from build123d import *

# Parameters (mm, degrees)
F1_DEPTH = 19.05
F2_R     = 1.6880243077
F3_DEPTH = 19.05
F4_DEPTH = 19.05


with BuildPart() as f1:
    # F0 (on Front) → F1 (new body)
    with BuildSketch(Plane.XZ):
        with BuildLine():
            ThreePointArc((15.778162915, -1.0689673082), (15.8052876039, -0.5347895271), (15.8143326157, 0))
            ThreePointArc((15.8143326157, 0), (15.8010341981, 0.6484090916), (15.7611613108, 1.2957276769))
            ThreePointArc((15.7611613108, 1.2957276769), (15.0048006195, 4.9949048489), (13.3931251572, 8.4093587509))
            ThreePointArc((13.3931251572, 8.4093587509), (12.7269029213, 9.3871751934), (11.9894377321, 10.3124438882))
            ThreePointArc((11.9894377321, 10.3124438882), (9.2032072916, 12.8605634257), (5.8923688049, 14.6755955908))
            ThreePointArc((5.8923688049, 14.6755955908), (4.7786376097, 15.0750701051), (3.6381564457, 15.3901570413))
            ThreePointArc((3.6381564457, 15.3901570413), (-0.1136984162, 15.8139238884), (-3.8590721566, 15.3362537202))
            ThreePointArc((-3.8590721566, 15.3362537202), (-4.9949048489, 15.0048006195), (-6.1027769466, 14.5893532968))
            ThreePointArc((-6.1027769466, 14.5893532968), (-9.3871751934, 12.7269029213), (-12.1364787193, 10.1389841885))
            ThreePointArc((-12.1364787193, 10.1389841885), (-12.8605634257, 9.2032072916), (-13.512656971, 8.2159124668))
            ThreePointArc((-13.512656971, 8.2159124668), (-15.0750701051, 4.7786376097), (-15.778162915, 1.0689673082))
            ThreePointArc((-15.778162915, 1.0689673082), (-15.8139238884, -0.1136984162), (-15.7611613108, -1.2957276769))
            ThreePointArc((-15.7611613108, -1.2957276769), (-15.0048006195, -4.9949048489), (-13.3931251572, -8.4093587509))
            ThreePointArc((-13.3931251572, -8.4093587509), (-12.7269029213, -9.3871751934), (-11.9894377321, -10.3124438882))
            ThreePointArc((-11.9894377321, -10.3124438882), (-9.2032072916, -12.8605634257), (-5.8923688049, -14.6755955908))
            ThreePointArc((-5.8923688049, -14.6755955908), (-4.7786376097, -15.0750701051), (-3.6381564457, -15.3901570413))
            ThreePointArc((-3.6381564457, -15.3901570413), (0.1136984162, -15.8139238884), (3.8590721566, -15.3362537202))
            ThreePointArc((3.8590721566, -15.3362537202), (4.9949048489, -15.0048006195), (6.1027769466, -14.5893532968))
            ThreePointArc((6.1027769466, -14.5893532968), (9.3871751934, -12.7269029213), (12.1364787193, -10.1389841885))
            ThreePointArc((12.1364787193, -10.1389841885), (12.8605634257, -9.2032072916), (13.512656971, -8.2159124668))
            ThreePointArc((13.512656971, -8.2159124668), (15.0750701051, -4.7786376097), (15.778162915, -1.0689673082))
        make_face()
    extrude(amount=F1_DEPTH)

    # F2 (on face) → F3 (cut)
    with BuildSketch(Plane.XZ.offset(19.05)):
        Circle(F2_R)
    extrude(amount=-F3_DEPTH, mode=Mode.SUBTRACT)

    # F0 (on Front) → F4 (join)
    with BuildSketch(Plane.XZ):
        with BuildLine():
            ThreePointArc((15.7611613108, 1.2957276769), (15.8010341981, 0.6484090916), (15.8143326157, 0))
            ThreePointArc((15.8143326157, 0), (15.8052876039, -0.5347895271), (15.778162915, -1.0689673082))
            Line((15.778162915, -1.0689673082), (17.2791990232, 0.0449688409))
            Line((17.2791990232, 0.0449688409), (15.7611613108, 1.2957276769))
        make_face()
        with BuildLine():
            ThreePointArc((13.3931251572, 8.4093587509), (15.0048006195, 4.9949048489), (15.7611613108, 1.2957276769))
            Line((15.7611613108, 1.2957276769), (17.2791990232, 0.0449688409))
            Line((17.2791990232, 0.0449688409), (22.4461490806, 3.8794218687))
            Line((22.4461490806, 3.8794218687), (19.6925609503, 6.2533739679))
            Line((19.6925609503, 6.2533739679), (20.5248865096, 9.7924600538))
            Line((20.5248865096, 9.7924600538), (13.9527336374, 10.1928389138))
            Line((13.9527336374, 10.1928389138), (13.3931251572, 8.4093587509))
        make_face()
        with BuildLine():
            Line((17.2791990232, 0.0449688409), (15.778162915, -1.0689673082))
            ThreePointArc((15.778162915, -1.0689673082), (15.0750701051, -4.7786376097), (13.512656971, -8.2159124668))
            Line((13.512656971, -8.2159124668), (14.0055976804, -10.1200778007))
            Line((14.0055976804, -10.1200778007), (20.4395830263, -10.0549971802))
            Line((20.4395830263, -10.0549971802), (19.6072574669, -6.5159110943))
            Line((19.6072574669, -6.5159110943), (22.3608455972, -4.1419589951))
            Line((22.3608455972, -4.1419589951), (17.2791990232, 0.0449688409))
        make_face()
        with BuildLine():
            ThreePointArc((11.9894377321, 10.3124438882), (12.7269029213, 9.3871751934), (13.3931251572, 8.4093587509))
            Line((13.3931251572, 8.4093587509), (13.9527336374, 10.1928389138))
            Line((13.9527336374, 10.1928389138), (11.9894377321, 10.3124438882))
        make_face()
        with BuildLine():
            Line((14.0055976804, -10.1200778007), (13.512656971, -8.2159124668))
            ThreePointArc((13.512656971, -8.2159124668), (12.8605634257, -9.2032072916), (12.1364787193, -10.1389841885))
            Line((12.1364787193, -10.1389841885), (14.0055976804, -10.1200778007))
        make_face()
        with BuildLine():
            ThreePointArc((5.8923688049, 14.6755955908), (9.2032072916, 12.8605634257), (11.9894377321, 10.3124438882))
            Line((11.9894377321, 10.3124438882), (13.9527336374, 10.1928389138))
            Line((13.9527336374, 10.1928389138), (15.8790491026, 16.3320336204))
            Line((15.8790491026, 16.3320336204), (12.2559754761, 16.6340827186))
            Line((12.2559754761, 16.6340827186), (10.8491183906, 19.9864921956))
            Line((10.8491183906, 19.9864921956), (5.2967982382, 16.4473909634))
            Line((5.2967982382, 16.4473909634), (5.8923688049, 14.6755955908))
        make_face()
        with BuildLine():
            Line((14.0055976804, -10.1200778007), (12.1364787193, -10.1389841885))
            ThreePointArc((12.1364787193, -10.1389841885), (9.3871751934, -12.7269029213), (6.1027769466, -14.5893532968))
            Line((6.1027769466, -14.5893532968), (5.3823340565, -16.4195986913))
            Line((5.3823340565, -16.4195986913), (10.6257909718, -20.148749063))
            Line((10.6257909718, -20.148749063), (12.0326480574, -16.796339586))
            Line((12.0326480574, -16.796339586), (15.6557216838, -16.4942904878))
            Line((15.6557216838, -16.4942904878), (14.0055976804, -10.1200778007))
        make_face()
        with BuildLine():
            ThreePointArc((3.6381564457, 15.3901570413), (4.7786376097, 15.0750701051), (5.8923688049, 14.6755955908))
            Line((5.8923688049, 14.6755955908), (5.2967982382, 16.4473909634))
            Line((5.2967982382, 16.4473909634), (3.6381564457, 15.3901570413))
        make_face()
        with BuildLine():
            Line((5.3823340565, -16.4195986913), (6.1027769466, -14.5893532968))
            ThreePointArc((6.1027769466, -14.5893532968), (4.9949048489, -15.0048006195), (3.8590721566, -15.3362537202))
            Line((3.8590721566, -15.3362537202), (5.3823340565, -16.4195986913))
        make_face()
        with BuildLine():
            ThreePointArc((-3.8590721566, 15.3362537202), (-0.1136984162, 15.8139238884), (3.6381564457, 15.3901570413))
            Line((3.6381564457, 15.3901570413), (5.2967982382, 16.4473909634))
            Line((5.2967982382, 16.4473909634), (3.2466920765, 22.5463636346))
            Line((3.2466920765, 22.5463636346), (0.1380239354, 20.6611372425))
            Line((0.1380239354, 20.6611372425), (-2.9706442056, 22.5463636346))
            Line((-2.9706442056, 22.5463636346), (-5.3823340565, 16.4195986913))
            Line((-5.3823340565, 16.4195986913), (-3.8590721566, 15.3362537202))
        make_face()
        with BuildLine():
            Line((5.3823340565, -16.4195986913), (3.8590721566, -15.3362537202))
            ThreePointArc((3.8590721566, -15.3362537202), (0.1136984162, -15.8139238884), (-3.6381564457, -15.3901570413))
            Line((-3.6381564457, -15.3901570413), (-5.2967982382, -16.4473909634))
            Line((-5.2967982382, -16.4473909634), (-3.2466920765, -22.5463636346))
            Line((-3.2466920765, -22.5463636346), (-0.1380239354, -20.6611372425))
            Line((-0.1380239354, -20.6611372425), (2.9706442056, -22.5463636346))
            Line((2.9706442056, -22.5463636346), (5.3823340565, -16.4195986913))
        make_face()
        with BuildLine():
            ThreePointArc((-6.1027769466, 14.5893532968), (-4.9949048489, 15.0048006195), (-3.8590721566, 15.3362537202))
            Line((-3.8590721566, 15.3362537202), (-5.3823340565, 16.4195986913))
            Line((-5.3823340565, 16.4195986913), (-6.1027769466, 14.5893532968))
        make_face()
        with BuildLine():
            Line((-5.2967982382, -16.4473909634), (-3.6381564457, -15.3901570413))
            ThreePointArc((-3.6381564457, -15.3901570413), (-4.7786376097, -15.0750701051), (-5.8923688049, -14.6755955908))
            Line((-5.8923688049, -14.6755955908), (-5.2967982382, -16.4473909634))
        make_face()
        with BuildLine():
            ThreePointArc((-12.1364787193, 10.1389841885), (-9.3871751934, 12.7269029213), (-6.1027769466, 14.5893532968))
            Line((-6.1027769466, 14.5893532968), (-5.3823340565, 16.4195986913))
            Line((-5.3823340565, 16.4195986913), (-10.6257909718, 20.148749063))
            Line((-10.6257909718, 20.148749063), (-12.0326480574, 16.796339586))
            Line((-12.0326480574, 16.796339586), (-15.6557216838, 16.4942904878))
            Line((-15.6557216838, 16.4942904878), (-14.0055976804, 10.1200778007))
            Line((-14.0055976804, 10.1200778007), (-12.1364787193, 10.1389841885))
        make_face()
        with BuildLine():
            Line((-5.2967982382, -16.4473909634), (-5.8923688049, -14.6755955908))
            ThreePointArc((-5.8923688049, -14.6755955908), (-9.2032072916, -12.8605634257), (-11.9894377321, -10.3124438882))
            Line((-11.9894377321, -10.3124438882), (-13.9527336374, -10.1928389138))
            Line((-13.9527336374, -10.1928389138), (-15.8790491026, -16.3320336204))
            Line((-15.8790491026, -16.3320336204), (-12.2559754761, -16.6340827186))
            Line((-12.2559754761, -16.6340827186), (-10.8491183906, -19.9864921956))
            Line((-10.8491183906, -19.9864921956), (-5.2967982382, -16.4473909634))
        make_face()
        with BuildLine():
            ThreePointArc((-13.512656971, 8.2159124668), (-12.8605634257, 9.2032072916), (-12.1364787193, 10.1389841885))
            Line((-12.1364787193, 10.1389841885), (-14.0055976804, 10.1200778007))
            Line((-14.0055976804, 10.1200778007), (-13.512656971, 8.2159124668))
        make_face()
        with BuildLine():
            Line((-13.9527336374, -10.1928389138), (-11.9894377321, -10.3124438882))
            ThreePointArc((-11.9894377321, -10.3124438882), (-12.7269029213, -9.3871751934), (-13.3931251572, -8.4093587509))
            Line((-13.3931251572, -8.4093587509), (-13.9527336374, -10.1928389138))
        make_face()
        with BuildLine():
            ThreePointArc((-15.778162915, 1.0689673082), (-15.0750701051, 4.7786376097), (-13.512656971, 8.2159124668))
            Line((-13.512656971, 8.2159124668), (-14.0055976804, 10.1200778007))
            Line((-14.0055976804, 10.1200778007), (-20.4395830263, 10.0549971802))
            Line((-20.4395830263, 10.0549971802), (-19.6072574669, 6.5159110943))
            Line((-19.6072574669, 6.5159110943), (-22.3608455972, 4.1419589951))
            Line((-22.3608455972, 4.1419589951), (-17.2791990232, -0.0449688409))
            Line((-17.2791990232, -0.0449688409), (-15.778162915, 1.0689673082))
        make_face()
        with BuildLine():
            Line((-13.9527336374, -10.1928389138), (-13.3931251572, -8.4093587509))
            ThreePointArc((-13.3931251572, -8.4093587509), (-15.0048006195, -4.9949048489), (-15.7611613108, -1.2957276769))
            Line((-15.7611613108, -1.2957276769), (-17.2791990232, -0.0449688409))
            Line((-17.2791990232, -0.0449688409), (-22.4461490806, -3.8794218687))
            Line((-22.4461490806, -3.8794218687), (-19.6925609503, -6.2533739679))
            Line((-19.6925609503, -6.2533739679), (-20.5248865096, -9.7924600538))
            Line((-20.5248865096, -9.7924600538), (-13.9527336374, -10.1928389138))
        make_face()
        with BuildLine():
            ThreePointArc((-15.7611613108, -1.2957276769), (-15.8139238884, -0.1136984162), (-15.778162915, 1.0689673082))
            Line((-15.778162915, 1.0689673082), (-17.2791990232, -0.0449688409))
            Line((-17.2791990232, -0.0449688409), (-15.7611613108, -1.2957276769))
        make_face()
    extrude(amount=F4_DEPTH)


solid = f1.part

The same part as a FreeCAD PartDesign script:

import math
import FreeCAD as App
import Part
import Sketcher

V = App.Vector
Q = App.Units.Quantity

doc = App.newDocument("Part")
body = doc.addObject("PartDesign::Body", "Body")

# Sketch on XZ plane
sketch1 = doc.addObject("Sketcher::SketchObject", "Sketch")
body.addObject(sketch1)
sketch1.AttachmentSupport = (doc.XZ_Plane, [""])
sketch1.MapMode = "FlatFace"
sketch1.addGeometry([
    Part.ArcOfCircle(Part.Circle(V(0, 0, 0), V(0, 0, 1), 15.8), math.radians(-3.88), math.radians(0)),  # 0
    Part.ArcOfCircle(Part.Circle(V(0, 0, 0), V(0, 0, 1), 15.8), math.radians(0), math.radians(4.7)),  # 1
    Part.ArcOfCircle(Part.Circle(V(0, 0, 0), V(0, 0, 1), 15.8), math.radians(5), math.radians(32)),  # 2
    Part.ArcOfCircle(Part.Circle(V(0, 0, 0), V(0, 0, 1), 15.8), math.radians(32.12), math.radians(40.7)),  # 3
    Part.ArcOfCircle(Part.Circle(V(0, 0, 0), V(0, 0, 1), 15.8), math.radians(41), math.radians(68)),  # 4
    Part.ArcOfCircle(Part.Circle(V(0, 0, 0), V(0, 0, 1), 15.8), math.radians(68.12), math.radians(76.7)),  # 5
    Part.ArcOfCircle(Part.Circle(V(0, 0, 0), V(0, 0, 1), 15.8), math.radians(77), math.radians(104)),  # 6
    Part.ArcOfCircle(Part.Circle(V(0, 0, 0), V(0, 0, 1), 15.8), math.radians(104.12), math.radians(112.7)),  # 7
    Part.ArcOfCircle(Part.Circle(V(0, 0, 0), V(0, 0, 1), 15.8), math.radians(113), math.radians(140)),  # 8
    Part.ArcOfCircle(Part.Circle(V(0, 0, 0), V(0, 0, 1), 15.8), math.radians(140.12), math.radians(148.7)),  # 9
    Part.ArcOfCircle(Part.Circle(V(0, 0, 0), V(0, 0, 1), 15.8), math.radians(149), math.radians(176)),  # 10
    Part.ArcOfCircle(Part.Circle(V(0, 0, 0), V(0, 0, 1), 15.8), math.radians(176.12), math.radians(184.7)),  # 11
    Part.ArcOfCircle(Part.Circle(V(0, 0, 0), V(0, 0, 1), 15.8), math.radians(-175), math.radians(-148)),  # 12
    Part.ArcOfCircle(Part.Circle(V(0, 0, 0), V(0, 0, 1), 15.8), math.radians(-147.88), math.radians(-139.3)),  # 13
    Part.ArcOfCircle(Part.Circle(V(0, 0, 0), V(0, 0, 1), 15.8), math.radians(-139), math.radians(-112)),  # 14
    Part.ArcOfCircle(Part.Circle(V(0, 0, 0), V(0, 0, 1), 15.8), math.radians(-111.88), math.radians(-103.3)),  # 15
    Part.ArcOfCircle(Part.Circle(V(0, 0, 0), V(0, 0, 1), 15.8), math.radians(-103), math.radians(-76)),  # 16
    Part.ArcOfCircle(Part.Circle(V(0, 0, 0), V(0, 0, 1), 15.8), math.radians(-75.88), math.radians(-67.3)),  # 17
    Part.ArcOfCircle(Part.Circle(V(0, 0, 0), V(0, 0, 1), 15.8), math.radians(-67), math.radians(-40)),  # 18
    Part.ArcOfCircle(Part.Circle(V(0, 0, 0), V(0, 0, 1), 15.8), math.radians(-39.88), math.radians(-31.3)),  # 19
    Part.ArcOfCircle(Part.Circle(V(0, 0, 0), V(0, 0, 1), 15.8), math.radians(-31), math.radians(-4)),  # 20
], False)
sketch1.addConstraint([
    Sketcher.Constraint("Tangent", 0, 2, 1, 1),
    Sketcher.Constraint("Tangent", 1, 2, 2, 1),
    Sketcher.Constraint("Tangent", 2, 2, 3, 1),
    Sketcher.Constraint("Tangent", 3, 2, 4, 1),
    Sketcher.Constraint("Tangent", 4, 2, 5, 1),
    Sketcher.Constraint("Tangent", 5, 2, 6, 1),
    Sketcher.Constraint("Tangent", 6, 2, 7, 1),
    Sketcher.Constraint("Tangent", 7, 2, 8, 1),
    Sketcher.Constraint("Tangent", 8, 2, 9, 1),
    Sketcher.Constraint("Tangent", 9, 2, 10, 1),
    Sketcher.Constraint("Tangent", 10, 2, 11, 1),
    Sketcher.Constraint("Tangent", 11, 2, 12, 1),
    Sketcher.Constraint("Tangent", 12, 2, 13, 1),
    Sketcher.Constraint("Tangent", 13, 2, 14, 1),
    Sketcher.Constraint("Tangent", 14, 2, 15, 1),
    Sketcher.Constraint("Tangent", 15, 2, 16, 1),
    Sketcher.Constraint("Tangent", 16, 2, 17, 1),
    Sketcher.Constraint("Tangent", 17, 2, 18, 1),
    Sketcher.Constraint("Tangent", 18, 2, 19, 1),
    Sketcher.Constraint("Tangent", 19, 2, 20, 1),
    Sketcher.Constraint("Tangent", 20, 2, 0, 1),
    Sketcher.Constraint("Coincident", 0, 3, -1, 1),
    Sketcher.Constraint("Coincident", 2, 3, -1, 1),
    Sketcher.Constraint("Coincident", 4, 3, -1, 1),
    Sketcher.Constraint("Coincident", 6, 3, -1, 1),
    Sketcher.Constraint("Coincident", 8, 3, -1, 1),
    Sketcher.Constraint("Coincident", 10, 3, -1, 1),
    Sketcher.Constraint("Coincident", 12, 3, -1, 1),
    Sketcher.Constraint("Coincident", 14, 3, -1, 1),
    Sketcher.Constraint("Coincident", 16, 3, -1, 1),
    Sketcher.Constraint("Coincident", 18, 3, -1, 1),
    Sketcher.Constraint("PointOnObject", 0, 2, -1),
    Sketcher.Constraint("Radius", 0, Q("15.814333 mm")),
    Sketcher.Constraint("DistanceY", 2, 2, 5, 2, Q("6.980798 mm")),
    Sketcher.Constraint("DistanceY", 7, 2, 6, 2, Q("0.7469 mm")),
    Sketcher.Constraint("DistanceX", 8, 2, 7, 2, Q("6.033702 mm")),
    Sketcher.Constraint("DistanceX", 10, 2, 11, 2, Q("0.017002 mm")),
    Sketcher.Constraint("DistanceY", 15, 2, 12, 2, Q("6.980798 mm")),
    Sketcher.Constraint("DistanceY", 16, 2, 17, 2, Q("0.7469 mm")),
    Sketcher.Constraint("DistanceX", 17, 2, 18, 2, Q("6.033702 mm")),
    Sketcher.Constraint("DistanceX", 1, 2, 20, 2, Q("0.017002 mm")),
    Sketcher.Constraint("DistanceX", -1, 1, 1, 2, Q("15.761161 mm")),
    Sketcher.Constraint("DistanceY", -1, 1, 2, 2, Q("8.409359 mm")),
    Sketcher.Constraint("DistanceX", -1, 1, 4, 2, Q("5.892369 mm")),
    Sketcher.Constraint("DistanceX", 8, 2, -1, 1, Q("12.136479 mm")),
    Sketcher.Constraint("DistanceX", 11, 2, -1, 1, Q("15.761161 mm")),
    Sketcher.Constraint("DistanceY", 12, 2, -1, 1, Q("8.409359 mm")),
    Sketcher.Constraint("DistanceX", 14, 2, -1, 1, Q("5.892369 mm")),
    Sketcher.Constraint("DistanceX", -1, 1, 18, 2, Q("12.136479 mm")),
    Sketcher.Constraint("DistanceX", 4, 2, 3, 2, Q("6.097069 mm")),
    Sketcher.Constraint("DistanceX", 9, 2, 8, 2, Q("1.376178 mm")),
    Sketcher.Constraint("DistanceY", 13, 2, 10, 2, Q("11.381411 mm")),
    Sketcher.Constraint("DistanceX", 18, 2, 19, 2, Q("1.376178 mm")),
])
pad1 = doc.addObject("PartDesign::Pad", "Pad")
body.addObject(pad1)
pad1.Profile = sketch1
pad1.Length = Q("0.75 in")

# Sketch on XZ plane
sketch2 = doc.addObject("Sketcher::SketchObject", "Sketch001")
body.addObject(sketch2)
sketch2.AttachmentSupport = (doc.XZ_Plane, [""])
sketch2.MapMode = "FlatFace"
sketch2.AttachmentOffset = App.Placement(V(0, 0, 0.75 * 25.4), App.Rotation())
sketch2.addGeometry(Part.Circle(V(0, 0, 0), V(0, 0, 1), 1.7), False)
sketch2.addConstraint([
    Sketcher.Constraint("Coincident", 0, 3, -1, 1),
    Sketcher.Constraint("Diameter", 0, Q("3.376049 mm")),
])
pocket1 = doc.addObject("PartDesign::Pocket", "Pocket")
body.addObject(pocket1)
pocket1.Profile = sketch2
pocket1.Length = Q("0.75 in")

# Sketch on XZ plane
sketch3 = doc.addObject("Sketcher::SketchObject", "Sketch002")
body.addObject(sketch3)
sketch3.AttachmentSupport = (doc.XZ_Plane, [""])
sketch3.MapMode = "FlatFace"
sketch3.addGeometry([
    Part.LineSegment(V(-22.4, 4.1, 0), V(-17.3, 0, 0)),  # 0
    Part.LineSegment(V(-17.3, 0, 0), V(-22.4, -3.9, 0)),  # 1
    Part.LineSegment(V(-22.4, -3.9, 0), V(-19.7, -6.3, 0)),  # 2
    Part.LineSegment(V(-19.7, -6.3, 0), V(-20.5, -9.8, 0)),  # 3
    Part.LineSegment(V(-20.5, -9.8, 0), V(-14, -10.2, 0)),  # 4
    Part.LineSegment(V(-14, -10.2, 0), V(-15.9, -16.3, 0)),  # 5
    Part.LineSegment(V(-15.9, -16.3, 0), V(-12.3, -16.6, 0)),  # 6
    Part.LineSegment(V(-12.3, -16.6, 0), V(-10.8, -20, 0)),  # 7
    Part.LineSegment(V(-10.8, -20, 0), V(-5.3, -16.4, 0)),  # 8
    Part.LineSegment(V(-5.3, -16.4, 0), V(-3.2, -22.5, 0)),  # 9
    Part.LineSegment(V(-3.2, -22.5, 0), V(-0.1, -20.7, 0)),  # 10
    Part.LineSegment(V(-0.1, -20.7, 0), V(3, -22.5, 0)),  # 11
    Part.LineSegment(V(3, -22.5, 0), V(5.4, -16.4, 0)),  # 12
    Part.LineSegment(V(5.4, -16.4, 0), V(10.6, -20.1, 0)),  # 13
    Part.LineSegment(V(10.6, -20.1, 0), V(12, -16.8, 0)),  # 14
    Part.LineSegment(V(12, -16.8, 0), V(15.7, -16.5, 0)),  # 15
    Part.LineSegment(V(15.7, -16.5, 0), V(14, -10.1, 0)),  # 16
    Part.LineSegment(V(14, -10.1, 0), V(20.4, -10.1, 0)),  # 17
    Part.LineSegment(V(20.4, -10.1, 0), V(19.6, -6.5, 0)),  # 18
    Part.LineSegment(V(19.6, -6.5, 0), V(22.4, -4.1, 0)),  # 19
    Part.LineSegment(V(22.4, -4.1, 0), V(17.3, 0, 0)),  # 20
    Part.LineSegment(V(17.3, 0, 0), V(22.4, 3.9, 0)),  # 21
    Part.LineSegment(V(22.4, 3.9, 0), V(19.7, 6.3, 0)),  # 22
    Part.LineSegment(V(19.7, 6.3, 0), V(20.5, 9.8, 0)),  # 23
    Part.LineSegment(V(20.5, 9.8, 0), V(14, 10.2, 0)),  # 24
    Part.LineSegment(V(14, 10.2, 0), V(15.9, 16.3, 0)),  # 25
    Part.LineSegment(V(15.9, 16.3, 0), V(12.3, 16.6, 0)),  # 26
    Part.LineSegment(V(12.3, 16.6, 0), V(10.8, 20, 0)),  # 27
    Part.LineSegment(V(10.8, 20, 0), V(5.3, 16.4, 0)),  # 28
    Part.LineSegment(V(5.3, 16.4, 0), V(3.2, 22.5, 0)),  # 29
    Part.LineSegment(V(3.2, 22.5, 0), V(0.1, 20.7, 0)),  # 30
    Part.LineSegment(V(0.1, 20.7, 0), V(-3, 22.5, 0)),  # 31
    Part.LineSegment(V(-3, 22.5, 0), V(-5.4, 16.4, 0)),  # 32
    Part.LineSegment(V(-5.4, 16.4, 0), V(-10.6, 20.1, 0)),  # 33
    Part.LineSegment(V(-10.6, 20.1, 0), V(-12, 16.8, 0)),  # 34
    Part.LineSegment(V(-12, 16.8, 0), V(-15.7, 16.5, 0)),  # 35
    Part.LineSegment(V(-15.7, 16.5, 0), V(-14, 10.1, 0)),  # 36
    Part.LineSegment(V(-14, 10.1, 0), V(-20.4, 10.1, 0)),  # 37
    Part.LineSegment(V(-20.4, 10.1, 0), V(-19.6, 6.5, 0)),  # 38
    Part.LineSegment(V(-19.6, 6.5, 0), V(-22.4, 4.1, 0)),  # 39
    Part.ArcOfCircle(Part.Circle(V(0, 0, 0), V(0, 0, 1), 15.8), math.radians(-175), math.radians(-148)),  # 40
    Part.ArcOfCircle(Part.Circle(V(0, 0, 0), V(0, 0, 1), 15.8), math.radians(176.12), math.radians(184.7)),  # 41
    Part.ArcOfCircle(Part.Circle(V(0, 0, 0), V(0, 0, 1), 15.8), math.radians(149), math.radians(176)),  # 42
    Part.ArcOfCircle(Part.Circle(V(0, 0, 0), V(0, 0, 1), 15.8), math.radians(140.12), math.radians(148.7)),  # 43
    Part.ArcOfCircle(Part.Circle(V(0, 0, 0), V(0, 0, 1), 15.8), math.radians(113), math.radians(140)),  # 44
    Part.ArcOfCircle(Part.Circle(V(0, 0, 0), V(0, 0, 1), 15.8), math.radians(104.12), math.radians(112.7)),  # 45
    Part.ArcOfCircle(Part.Circle(V(0, 0, 0), V(0, 0, 1), 15.8), math.radians(77), math.radians(104)),  # 46
    Part.ArcOfCircle(Part.Circle(V(0, 0, 0), V(0, 0, 1), 15.8), math.radians(68.12), math.radians(76.7)),  # 47
    Part.ArcOfCircle(Part.Circle(V(0, 0, 0), V(0, 0, 1), 15.8), math.radians(41), math.radians(68)),  # 48
    Part.ArcOfCircle(Part.Circle(V(0, 0, 0), V(0, 0, 1), 15.8), math.radians(32.12), math.radians(40.7)),  # 49
    Part.ArcOfCircle(Part.Circle(V(0, 0, 0), V(0, 0, 1), 15.8), math.radians(5), math.radians(32)),  # 50
    Part.ArcOfCircle(Part.Circle(V(0, 0, 0), V(0, 0, 1), 15.8), math.radians(0), math.radians(4.7)),  # 51
    Part.ArcOfCircle(Part.Circle(V(0, 0, 0), V(0, 0, 1), 15.8), math.radians(-3.88), math.radians(0)),  # 52
    Part.ArcOfCircle(Part.Circle(V(0, 0, 0), V(0, 0, 1), 15.8), math.radians(-31), math.radians(-4)),  # 53
    Part.ArcOfCircle(Part.Circle(V(0, 0, 0), V(0, 0, 1), 15.8), math.radians(-39.88), math.radians(-31.3)),  # 54
    Part.ArcOfCircle(Part.Circle(V(0, 0, 0), V(0, 0, 1), 15.8), math.radians(-67), math.radians(-40)),  # 55
    Part.ArcOfCircle(Part.Circle(V(0, 0, 0), V(0, 0, 1), 15.8), math.radians(-75.88), math.radians(-67.3)),  # 56
    Part.ArcOfCircle(Part.Circle(V(0, 0, 0), V(0, 0, 1), 15.8), math.radians(-103), math.radians(-76)),  # 57
    Part.ArcOfCircle(Part.Circle(V(0, 0, 0), V(0, 0, 1), 15.8), math.radians(-111.88), math.radians(-103.3)),  # 58
    Part.ArcOfCircle(Part.Circle(V(0, 0, 0), V(0, 0, 1), 15.8), math.radians(-139), math.radians(-112)),  # 59
    Part.ArcOfCircle(Part.Circle(V(0, 0, 0), V(0, 0, 1), 15.8), math.radians(-147.88), math.radians(-139.3)),  # 60
], False)
sketch3.addConstraint([
    Sketcher.Constraint("Coincident", 0, 2, 1, 1),
    Sketcher.Constraint("Coincident", 1, 2, 2, 1),
    Sketcher.Constraint("Coincident", 2, 2, 3, 1),
    Sketcher.Constraint("Coincident", 3, 2, 4, 1),
    Sketcher.Constraint("Coincident", 4, 2, 5, 1),
    Sketcher.Constraint("Coincident", 5, 2, 6, 1),
    Sketcher.Constraint("Coincident", 6, 2, 7, 1),
    Sketcher.Constraint("Coincident", 7, 2, 8, 1),
    Sketcher.Constraint("Coincident", 8, 2, 9, 1),
    Sketcher.Constraint("Coincident", 9, 2, 10, 1),
    Sketcher.Constraint("Coincident", 10, 2, 11, 1),
    Sketcher.Constraint("Coincident", 11, 2, 12, 1),
    Sketcher.Constraint("Coincident", 12, 2, 13, 1),
    Sketcher.Constraint("Coincident", 13, 2, 14, 1),
    Sketcher.Constraint("Coincident", 14, 2, 15, 1),
    Sketcher.Constraint("Coincident", 15, 2, 16, 1),
    Sketcher.Constraint("Coincident", 16, 2, 17, 1),
    Sketcher.Constraint("Coincident", 17, 2, 18, 1),
    Sketcher.Constraint("Coincident", 18, 2, 19, 1),
    Sketcher.Constraint("Coincident", 19, 2, 20, 1),
    Sketcher.Constraint("Coincident", 20, 2, 21, 1),
    Sketcher.Constraint("Coincident", 21, 2, 22, 1),
    Sketcher.Constraint("Coincident", 22, 2, 23, 1),
    Sketcher.Constraint("Coincident", 23, 2, 24, 1),
    Sketcher.Constraint("Coincident", 24, 2, 25, 1),
    Sketcher.Constraint("Coincident", 25, 2, 26, 1),
    Sketcher.Constraint("Coincident", 26, 2, 27, 1),
    Sketcher.Constraint("Coincident", 27, 2, 28, 1),
    Sketcher.Constraint("Coincident", 28, 2, 29, 1),
    Sketcher.Constraint("Coincident", 29, 2, 30, 1),
    Sketcher.Constraint("Coincident", 30, 2, 31, 1),
    Sketcher.Constraint("Coincident", 31, 2, 32, 1),
    Sketcher.Constraint("Coincident", 32, 2, 33, 1),
    Sketcher.Constraint("Coincident", 33, 2, 34, 1),
    Sketcher.Constraint("Coincident", 34, 2, 35, 1),
    Sketcher.Constraint("Coincident", 35, 2, 36, 1),
    Sketcher.Constraint("Coincident", 36, 2, 37, 1),
    Sketcher.Constraint("Coincident", 37, 2, 38, 1),
    Sketcher.Constraint("Coincident", 38, 2, 39, 1),
    Sketcher.Constraint("Coincident", 39, 2, 0, 1),
    Sketcher.Constraint("Tangent", 40, 1, 41, 2),
    Sketcher.Constraint("Tangent", 41, 1, 42, 2),
    Sketcher.Constraint("Tangent", 42, 1, 43, 2),
    Sketcher.Constraint("Tangent", 43, 1, 44, 2),
    Sketcher.Constraint("Tangent", 44, 1, 45, 2),
    Sketcher.Constraint("Tangent", 45, 1, 46, 2),
    Sketcher.Constraint("Tangent", 46, 1, 47, 2),
    Sketcher.Constraint("Tangent", 47, 1, 48, 2),
    Sketcher.Constraint("Tangent", 48, 1, 49, 2),
    Sketcher.Constraint("Tangent", 49, 1, 50, 2),
    Sketcher.Constraint("Tangent", 50, 1, 51, 2),
    Sketcher.Constraint("Tangent", 51, 1, 52, 2),
    Sketcher.Constraint("Tangent", 52, 1, 53, 2),
    Sketcher.Constraint("Tangent", 53, 1, 54, 2),
    Sketcher.Constraint("Tangent", 54, 1, 55, 2),
    Sketcher.Constraint("Tangent", 55, 1, 56, 2),
    Sketcher.Constraint("Tangent", 56, 1, 57, 2),
    Sketcher.Constraint("Tangent", 57, 1, 58, 2),
    Sketcher.Constraint("Tangent", 58, 1, 59, 2),
    Sketcher.Constraint("Tangent", 59, 1, 60, 2),
    Sketcher.Constraint("Tangent", 60, 1, 40, 2),
    Sketcher.Constraint("Coincident", 40, 3, -1, 1),
    Sketcher.Constraint("Coincident", 42, 3, -1, 1),
    Sketcher.Constraint("Coincident", 44, 3, -1, 1),
    Sketcher.Constraint("Coincident", 46, 3, -1, 1),
    Sketcher.Constraint("Coincident", 48, 3, -1, 1),
    Sketcher.Constraint("Coincident", 50, 3, -1, 1),
    Sketcher.Constraint("Coincident", 52, 3, -1, 1),
    Sketcher.Constraint("Coincident", 54, 3, -1, 1),
    Sketcher.Constraint("Coincident", 56, 3, -1, 1),
    Sketcher.Constraint("Coincident", 58, 3, -1, 1),
    Sketcher.Constraint("Symmetric", 0, 2, 20, 2, -1, 1),
    Sketcher.Constraint("Symmetric", 1, 2, 21, 2, -1, 1),
    Sketcher.Constraint("Symmetric", 2, 2, 22, 2, -1, 1),
    Sketcher.Constraint("Symmetric", 3, 2, 23, 2, -1, 1),
    Sketcher.Constraint("Symmetric", 4, 2, 24, 2, -1, 1),
    Sketcher.Constraint("Symmetric", 5, 2, 25, 2, -1, 1),
    Sketcher.Constraint("Symmetric", 6, 2, 26, 2, -1, 1),
    Sketcher.Constraint("Symmetric", 7, 2, 27, 2, -1, 1),
    Sketcher.Constraint("Symmetric", 8, 2, 28, 2, -1, 1),
    Sketcher.Constraint("Symmetric", 9, 2, 29, 2, -1, 1),
    Sketcher.Constraint("Symmetric", 10, 2, 30, 2, -1, 1),
    Sketcher.Constraint("Symmetric", 11, 2, 31, 2, -1, 1),
    Sketcher.Constraint("Symmetric", 12, 2, 32, 2, -1, 1),
    Sketcher.Constraint("Symmetric", 13, 2, 33, 2, -1, 1),
    Sketcher.Constraint("Symmetric", 14, 2, 34, 2, -1, 1),
    Sketcher.Constraint("Symmetric", 15, 2, 35, 2, -1, 1),
    Sketcher.Constraint("Symmetric", 16, 2, 36, 2, -1, 1),
    Sketcher.Constraint("Symmetric", 17, 2, 37, 2, -1, 1),
    Sketcher.Constraint("Symmetric", 18, 2, 38, 2, -1, 1),
    Sketcher.Constraint("Symmetric", 19, 2, 39, 2, -1, 1),
    Sketcher.Constraint("PointOnObject", 51, 1, -1),
    Sketcher.Constraint("Horizontal", 9, 2, 11, 2),
    Sketcher.Constraint("Equal", 2, 3),
    Sketcher.Constraint("Equal", 0, 4),
    Sketcher.Constraint("Equal", 1, 5),
    Sketcher.Constraint("Equal", 3, 6),
    Sketcher.Constraint("Equal", 6, 7),
    Sketcher.Constraint("Equal", 4, 8),
    Sketcher.Constraint("Equal", 5, 9),
    Sketcher.Constraint("Equal", 7, 10),
    Sketcher.Constraint("Equal", 10, 11),
    Sketcher.Constraint("Equal", 8, 12),
    Sketcher.Constraint("Equal", 9, 13),
    Sketcher.Constraint("Equal", 11, 14),
    Sketcher.Constraint("Equal", 14, 15),
    Sketcher.Constraint("Equal", 12, 16),
    Sketcher.Constraint("Equal", 13, 17),
    Sketcher.Constraint("Equal", 15, 18),
    Sketcher.Constraint("Equal", 18, 19),
    Sketcher.Constraint("Radius", 40, Q("15.814333 mm")),
    Sketcher.Constraint("DistanceX", 0, 2, -1, 1, Q("17.279199 mm")),
    Sketcher.Constraint("DistanceX", 8, 2, -1, 1, Q("5.296798 mm")),
    Sketcher.Constraint("DistanceY", 12, 2, -1, 1, Q("16.419599 mm")),
    Sketcher.Constraint("DistanceY", 0, 2, -1, 1, Q("0.044969 mm")),
    Sketcher.Constraint("DistanceX", 1, 2, -1, 1, Q("22.446149 mm")),
    Sketcher.Constraint("DistanceY", 1, 2, -1, 1, Q("3.879422 mm")),
    Sketcher.Constraint("DistanceX", 2, 2, -1, 1, Q("19.692561 mm")),
    Sketcher.Constraint("DistanceY", 3, 2, -1, 1, Q("9.79246 mm")),
    Sketcher.Constraint("DistanceY", 4, 2, -1, 1, Q("10.192839 mm")),
    Sketcher.Constraint("DistanceX", 5, 2, -1, 1, Q("15.879049 mm")),
    Sketcher.Constraint("DistanceX", 7, 2, -1, 1, Q("10.849118 mm")),
    Sketcher.Constraint("DistanceY", 8, 2, -1, 1, Q("16.447391 mm")),
    Sketcher.Constraint("DistanceX", -1, 1, 13, 2, Q("10.625791 mm")),
    Sketcher.Constraint("DistanceY", 13, 2, -1, 1, Q("20.148749 mm")),
    Sketcher.Constraint("DistanceX", -1, 1, 14, 2, Q("12.032648 mm")),
    Sketcher.Constraint("DistanceY", 14, 2, -1, 1, Q("16.79634 mm")),
    Sketcher.Constraint("DistanceX", -1, 1, 15, 2, Q("15.655722 mm")),
    Sketcher.Constraint("DistanceY", 18, 2, -1, 1, Q("6.515911 mm")),
    Sketcher.Constraint("DistanceY", 19, 2, -1, 1, Q("4.141959 mm")),
    Sketcher.Constraint("DistanceX", 40, 1, -1, 1, Q("15.761161 mm")),
    Sketcher.Constraint("DistanceX", 43, 1, -1, 1, Q("12.136479 mm")),
    Sketcher.Constraint("DistanceX", -1, 1, 47, 1, Q("5.892369 mm")),
    Sketcher.Constraint("DistanceY", -1, 1, 49, 1, Q("8.409359 mm")),
    Sketcher.Constraint("DistanceX", -1, 1, 50, 1, Q("15.761161 mm")),
    Sketcher.Constraint("DistanceX", -1, 1, 54, 1, Q("12.136479 mm")),
    Sketcher.Constraint("DistanceX", 58, 1, -1, 1, Q("5.892369 mm")),
    Sketcher.Constraint("DistanceY", 60, 1, -1, 1, Q("8.409359 mm")),
    Sketcher.Constraint("Distance", 0, Q("6.584337 mm")),
    Sketcher.Constraint("DistanceX", 9, 2, -1, 1, Q("3.246692 mm")),
    Sketcher.Constraint("DistanceX", -1, 1, 16, 2, Q("14.005598 mm")),
    Sketcher.Constraint("DistanceX", 41, 1, -1, 1, Q("15.778163 mm")),
    Sketcher.Constraint("DistanceX", 42, 1, -1, 1, Q("13.512657 mm")),
    Sketcher.Constraint("DistanceX", 44, 1, -1, 1, Q("6.102777 mm")),
    Sketcher.Constraint("DistanceX", 45, 1, -1, 1, Q("3.859072 mm")),
    Sketcher.Constraint("DistanceX", -1, 1, 46, 1, Q("3.638156 mm")),
    Sketcher.Constraint("DistanceX", -1, 1, 48, 1, Q("11.989438 mm")),
    Sketcher.Constraint("DistanceX", -1, 1, 52, 1, Q("15.778163 mm")),
    Sketcher.Constraint("DistanceX", -1, 1, 53, 1, Q("13.512657 mm")),
    Sketcher.Constraint("DistanceX", -1, 1, 55, 1, Q("6.102777 mm")),
    Sketcher.Constraint("DistanceX", -1, 1, 56, 1, Q("3.859072 mm")),
    Sketcher.Constraint("DistanceX", 57, 1, -1, 1, Q("3.638156 mm")),
    Sketcher.Constraint("DistanceX", 59, 1, -1, 1, Q("11.989438 mm")),
])
pad2 = doc.addObject("PartDesign::Pad", "Pad001")
body.addObject(pad2)
pad2.Profile = sketch3
pad2.Length = Q("0.75 in")

doc.recompute()
